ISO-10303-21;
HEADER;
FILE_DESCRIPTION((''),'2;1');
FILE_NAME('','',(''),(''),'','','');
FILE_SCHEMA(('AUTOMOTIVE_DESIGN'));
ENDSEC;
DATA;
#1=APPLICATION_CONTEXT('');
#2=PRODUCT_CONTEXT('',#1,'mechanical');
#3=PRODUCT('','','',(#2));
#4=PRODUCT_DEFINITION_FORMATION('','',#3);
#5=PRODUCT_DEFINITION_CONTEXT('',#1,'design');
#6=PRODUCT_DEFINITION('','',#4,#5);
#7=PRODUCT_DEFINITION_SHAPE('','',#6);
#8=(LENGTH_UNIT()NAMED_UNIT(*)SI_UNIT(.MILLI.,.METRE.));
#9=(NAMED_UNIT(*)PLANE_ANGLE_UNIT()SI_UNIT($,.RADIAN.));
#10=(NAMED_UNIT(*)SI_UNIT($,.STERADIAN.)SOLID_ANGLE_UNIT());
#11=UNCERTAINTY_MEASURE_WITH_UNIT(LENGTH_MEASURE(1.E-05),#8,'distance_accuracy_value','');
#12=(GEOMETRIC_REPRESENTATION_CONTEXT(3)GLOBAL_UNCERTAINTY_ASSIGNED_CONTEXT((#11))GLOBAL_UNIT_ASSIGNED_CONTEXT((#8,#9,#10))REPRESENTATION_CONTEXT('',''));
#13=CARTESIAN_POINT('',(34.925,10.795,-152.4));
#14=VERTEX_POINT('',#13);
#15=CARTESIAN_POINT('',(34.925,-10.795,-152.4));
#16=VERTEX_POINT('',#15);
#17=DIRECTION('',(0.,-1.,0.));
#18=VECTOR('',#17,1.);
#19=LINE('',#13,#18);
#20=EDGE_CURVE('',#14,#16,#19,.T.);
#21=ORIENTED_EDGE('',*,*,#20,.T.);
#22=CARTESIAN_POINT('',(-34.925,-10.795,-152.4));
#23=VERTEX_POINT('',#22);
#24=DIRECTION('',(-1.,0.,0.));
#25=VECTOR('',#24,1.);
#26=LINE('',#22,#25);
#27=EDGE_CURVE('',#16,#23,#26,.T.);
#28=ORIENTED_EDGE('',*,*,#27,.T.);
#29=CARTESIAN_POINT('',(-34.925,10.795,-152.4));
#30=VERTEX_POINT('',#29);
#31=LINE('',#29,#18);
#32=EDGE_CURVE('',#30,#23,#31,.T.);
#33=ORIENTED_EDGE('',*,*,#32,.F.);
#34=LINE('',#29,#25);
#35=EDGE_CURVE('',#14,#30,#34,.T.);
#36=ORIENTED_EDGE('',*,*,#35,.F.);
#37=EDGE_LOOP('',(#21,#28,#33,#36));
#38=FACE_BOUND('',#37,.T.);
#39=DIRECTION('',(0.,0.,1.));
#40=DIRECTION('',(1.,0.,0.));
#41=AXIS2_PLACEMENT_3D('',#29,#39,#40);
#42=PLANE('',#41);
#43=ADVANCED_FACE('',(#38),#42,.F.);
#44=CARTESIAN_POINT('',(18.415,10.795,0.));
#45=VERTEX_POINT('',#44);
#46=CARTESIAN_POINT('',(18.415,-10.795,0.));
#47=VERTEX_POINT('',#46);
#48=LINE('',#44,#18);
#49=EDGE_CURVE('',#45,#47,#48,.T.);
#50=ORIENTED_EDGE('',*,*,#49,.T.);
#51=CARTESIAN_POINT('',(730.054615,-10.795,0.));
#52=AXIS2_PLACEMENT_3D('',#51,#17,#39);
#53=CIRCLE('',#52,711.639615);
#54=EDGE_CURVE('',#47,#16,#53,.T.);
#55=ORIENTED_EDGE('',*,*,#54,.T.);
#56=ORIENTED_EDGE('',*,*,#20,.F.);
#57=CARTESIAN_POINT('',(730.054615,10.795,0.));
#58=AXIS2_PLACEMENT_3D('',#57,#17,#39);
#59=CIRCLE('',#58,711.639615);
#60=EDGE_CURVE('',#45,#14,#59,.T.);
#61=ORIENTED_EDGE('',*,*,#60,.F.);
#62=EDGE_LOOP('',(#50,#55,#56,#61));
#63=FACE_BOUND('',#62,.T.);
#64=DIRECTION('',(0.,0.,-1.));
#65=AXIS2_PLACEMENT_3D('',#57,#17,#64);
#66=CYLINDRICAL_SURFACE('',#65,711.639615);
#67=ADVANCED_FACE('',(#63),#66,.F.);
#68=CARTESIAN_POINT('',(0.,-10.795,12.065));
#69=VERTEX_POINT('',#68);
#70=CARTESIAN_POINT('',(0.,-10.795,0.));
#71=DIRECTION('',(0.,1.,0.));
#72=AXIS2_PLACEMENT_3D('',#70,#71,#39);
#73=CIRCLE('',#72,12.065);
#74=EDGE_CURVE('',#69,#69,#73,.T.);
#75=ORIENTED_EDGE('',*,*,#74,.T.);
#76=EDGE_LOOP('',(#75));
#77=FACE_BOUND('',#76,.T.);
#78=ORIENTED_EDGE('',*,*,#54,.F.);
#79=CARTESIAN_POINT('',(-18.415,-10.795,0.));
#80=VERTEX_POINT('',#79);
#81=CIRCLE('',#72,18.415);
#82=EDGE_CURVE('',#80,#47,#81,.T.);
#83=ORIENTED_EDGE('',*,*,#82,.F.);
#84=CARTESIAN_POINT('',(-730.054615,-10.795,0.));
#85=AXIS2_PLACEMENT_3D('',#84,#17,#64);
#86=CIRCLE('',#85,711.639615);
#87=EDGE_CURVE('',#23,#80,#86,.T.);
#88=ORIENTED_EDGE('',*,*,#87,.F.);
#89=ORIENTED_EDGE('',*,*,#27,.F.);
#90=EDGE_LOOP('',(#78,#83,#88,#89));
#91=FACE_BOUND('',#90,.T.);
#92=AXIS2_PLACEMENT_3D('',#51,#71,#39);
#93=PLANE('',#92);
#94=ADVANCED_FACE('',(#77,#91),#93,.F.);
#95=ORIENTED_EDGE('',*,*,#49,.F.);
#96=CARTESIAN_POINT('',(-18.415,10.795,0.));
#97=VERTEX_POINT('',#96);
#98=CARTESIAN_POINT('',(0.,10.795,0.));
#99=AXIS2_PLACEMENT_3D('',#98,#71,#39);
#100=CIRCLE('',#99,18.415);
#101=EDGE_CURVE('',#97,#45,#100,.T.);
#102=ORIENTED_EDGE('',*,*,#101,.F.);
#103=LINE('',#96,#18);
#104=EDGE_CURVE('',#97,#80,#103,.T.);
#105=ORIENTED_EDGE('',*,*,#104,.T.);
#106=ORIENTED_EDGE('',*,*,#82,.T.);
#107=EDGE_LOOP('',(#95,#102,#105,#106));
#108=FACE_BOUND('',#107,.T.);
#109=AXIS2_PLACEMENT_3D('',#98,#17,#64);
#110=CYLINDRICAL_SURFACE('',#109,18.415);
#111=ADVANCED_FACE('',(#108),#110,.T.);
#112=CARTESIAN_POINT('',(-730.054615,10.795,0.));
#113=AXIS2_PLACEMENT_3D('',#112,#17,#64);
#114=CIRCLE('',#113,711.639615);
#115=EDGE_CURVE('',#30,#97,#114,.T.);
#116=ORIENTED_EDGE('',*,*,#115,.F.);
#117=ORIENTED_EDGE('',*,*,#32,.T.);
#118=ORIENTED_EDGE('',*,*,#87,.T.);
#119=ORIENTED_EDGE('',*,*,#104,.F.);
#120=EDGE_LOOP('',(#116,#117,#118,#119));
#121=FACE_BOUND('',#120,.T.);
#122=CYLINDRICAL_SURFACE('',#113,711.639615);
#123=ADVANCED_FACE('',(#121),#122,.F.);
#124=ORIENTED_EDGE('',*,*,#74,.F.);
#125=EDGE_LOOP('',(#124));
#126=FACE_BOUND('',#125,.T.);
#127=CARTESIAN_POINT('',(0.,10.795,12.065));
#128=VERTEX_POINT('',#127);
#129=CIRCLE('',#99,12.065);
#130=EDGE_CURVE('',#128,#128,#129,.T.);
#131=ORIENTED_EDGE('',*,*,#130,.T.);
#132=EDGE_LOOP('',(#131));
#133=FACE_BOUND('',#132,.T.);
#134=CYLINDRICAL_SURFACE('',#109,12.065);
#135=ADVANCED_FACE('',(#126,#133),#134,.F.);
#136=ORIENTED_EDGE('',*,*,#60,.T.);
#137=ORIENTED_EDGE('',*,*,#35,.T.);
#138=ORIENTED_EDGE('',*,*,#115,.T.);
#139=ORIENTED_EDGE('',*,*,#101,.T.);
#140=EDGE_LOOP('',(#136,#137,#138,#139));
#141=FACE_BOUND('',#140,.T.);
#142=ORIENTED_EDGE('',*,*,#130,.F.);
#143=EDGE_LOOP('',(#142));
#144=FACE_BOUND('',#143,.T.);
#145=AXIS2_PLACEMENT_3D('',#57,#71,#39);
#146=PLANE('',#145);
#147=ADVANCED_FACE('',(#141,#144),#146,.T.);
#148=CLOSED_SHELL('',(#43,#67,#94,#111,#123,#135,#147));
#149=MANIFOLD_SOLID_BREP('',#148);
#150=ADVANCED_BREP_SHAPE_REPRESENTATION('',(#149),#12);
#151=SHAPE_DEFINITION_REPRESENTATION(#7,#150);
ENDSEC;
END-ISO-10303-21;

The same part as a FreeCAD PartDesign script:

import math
import FreeCAD as App
import Part
import Sketcher
Q = App.Units.Quantity

doc = App.newDocument("Part")
body = doc.addObject("PartDesign::Body", "Body")

sketch1 = body.newObject("Sketcher::SketchObject", "Sketch")
sketch1.AttachmentSupport = (doc.getObject("XZ_Plane"), [""])
sketch1.MapMode = "FlatFace"
sketch1.addGeometry([
    Part.LineSegment(App.Vector(35, -152, 0), App.Vector(-35, -152, 0)),
    Part.ArcOfCircle(Part.Circle(App.Vector(-730, 0, 0), App.Vector(0, 0, 1), 712), math.radians(-12.37), math.radians(0)),
    Part.ArcOfCircle(Part.Circle(App.Vector(0, 0, 0), App.Vector(0, 0, 1), 18), math.radians(0), math.radians(180)),
    Part.ArcOfCircle(Part.Circle(App.Vector(730, 0, 0), App.Vector(0, 0, 1), 712), math.radians(180), math.radians(192.37)),
    Part.Circle(App.Vector(0, 0, 0), App.Vector(0, 0, 1), 12),
], False)
sketch1.addConstraint([
    Sketcher.Constraint("Coincident", 0, 2, 1, 1),
    Sketcher.Constraint("Tangent", 1, 2, 2, 2),
    Sketcher.Constraint("Tangent", 2, 1, 3, 1),
    Sketcher.Constraint("Coincident", 3, 2, 0, 1),
    Sketcher.Constraint("Horizontal", 0),
    Sketcher.Constraint("Coincident", 2, 3, -1, 1),
    Sketcher.Constraint("Coincident", 4, 3, -1, 1),
    Sketcher.Constraint("Equal", 1, 3),
    Sketcher.Constraint("PointOnObject", 1, 3, -1),
    Sketcher.Constraint("PointOnObject", 3, 3, -1),
    Sketcher.Constraint("Diameter", 4, Q("0.95 in")),
    Sketcher.Constraint("DistanceY", 0, 2, -1, 1, Q("6 in")),
    Sketcher.Constraint("Radius", 2, Q("0.725 in")),
    Sketcher.Constraint("DistanceX", 0, 2, 0, 1, Q("2.75 in")),
])
pad1 = body.newObject("PartDesign::Pad", "Pad")
pad1.Profile = sketch1
pad1.Length = Q("0.85 in")
pad1.Midplane = True

doc.recompute()
